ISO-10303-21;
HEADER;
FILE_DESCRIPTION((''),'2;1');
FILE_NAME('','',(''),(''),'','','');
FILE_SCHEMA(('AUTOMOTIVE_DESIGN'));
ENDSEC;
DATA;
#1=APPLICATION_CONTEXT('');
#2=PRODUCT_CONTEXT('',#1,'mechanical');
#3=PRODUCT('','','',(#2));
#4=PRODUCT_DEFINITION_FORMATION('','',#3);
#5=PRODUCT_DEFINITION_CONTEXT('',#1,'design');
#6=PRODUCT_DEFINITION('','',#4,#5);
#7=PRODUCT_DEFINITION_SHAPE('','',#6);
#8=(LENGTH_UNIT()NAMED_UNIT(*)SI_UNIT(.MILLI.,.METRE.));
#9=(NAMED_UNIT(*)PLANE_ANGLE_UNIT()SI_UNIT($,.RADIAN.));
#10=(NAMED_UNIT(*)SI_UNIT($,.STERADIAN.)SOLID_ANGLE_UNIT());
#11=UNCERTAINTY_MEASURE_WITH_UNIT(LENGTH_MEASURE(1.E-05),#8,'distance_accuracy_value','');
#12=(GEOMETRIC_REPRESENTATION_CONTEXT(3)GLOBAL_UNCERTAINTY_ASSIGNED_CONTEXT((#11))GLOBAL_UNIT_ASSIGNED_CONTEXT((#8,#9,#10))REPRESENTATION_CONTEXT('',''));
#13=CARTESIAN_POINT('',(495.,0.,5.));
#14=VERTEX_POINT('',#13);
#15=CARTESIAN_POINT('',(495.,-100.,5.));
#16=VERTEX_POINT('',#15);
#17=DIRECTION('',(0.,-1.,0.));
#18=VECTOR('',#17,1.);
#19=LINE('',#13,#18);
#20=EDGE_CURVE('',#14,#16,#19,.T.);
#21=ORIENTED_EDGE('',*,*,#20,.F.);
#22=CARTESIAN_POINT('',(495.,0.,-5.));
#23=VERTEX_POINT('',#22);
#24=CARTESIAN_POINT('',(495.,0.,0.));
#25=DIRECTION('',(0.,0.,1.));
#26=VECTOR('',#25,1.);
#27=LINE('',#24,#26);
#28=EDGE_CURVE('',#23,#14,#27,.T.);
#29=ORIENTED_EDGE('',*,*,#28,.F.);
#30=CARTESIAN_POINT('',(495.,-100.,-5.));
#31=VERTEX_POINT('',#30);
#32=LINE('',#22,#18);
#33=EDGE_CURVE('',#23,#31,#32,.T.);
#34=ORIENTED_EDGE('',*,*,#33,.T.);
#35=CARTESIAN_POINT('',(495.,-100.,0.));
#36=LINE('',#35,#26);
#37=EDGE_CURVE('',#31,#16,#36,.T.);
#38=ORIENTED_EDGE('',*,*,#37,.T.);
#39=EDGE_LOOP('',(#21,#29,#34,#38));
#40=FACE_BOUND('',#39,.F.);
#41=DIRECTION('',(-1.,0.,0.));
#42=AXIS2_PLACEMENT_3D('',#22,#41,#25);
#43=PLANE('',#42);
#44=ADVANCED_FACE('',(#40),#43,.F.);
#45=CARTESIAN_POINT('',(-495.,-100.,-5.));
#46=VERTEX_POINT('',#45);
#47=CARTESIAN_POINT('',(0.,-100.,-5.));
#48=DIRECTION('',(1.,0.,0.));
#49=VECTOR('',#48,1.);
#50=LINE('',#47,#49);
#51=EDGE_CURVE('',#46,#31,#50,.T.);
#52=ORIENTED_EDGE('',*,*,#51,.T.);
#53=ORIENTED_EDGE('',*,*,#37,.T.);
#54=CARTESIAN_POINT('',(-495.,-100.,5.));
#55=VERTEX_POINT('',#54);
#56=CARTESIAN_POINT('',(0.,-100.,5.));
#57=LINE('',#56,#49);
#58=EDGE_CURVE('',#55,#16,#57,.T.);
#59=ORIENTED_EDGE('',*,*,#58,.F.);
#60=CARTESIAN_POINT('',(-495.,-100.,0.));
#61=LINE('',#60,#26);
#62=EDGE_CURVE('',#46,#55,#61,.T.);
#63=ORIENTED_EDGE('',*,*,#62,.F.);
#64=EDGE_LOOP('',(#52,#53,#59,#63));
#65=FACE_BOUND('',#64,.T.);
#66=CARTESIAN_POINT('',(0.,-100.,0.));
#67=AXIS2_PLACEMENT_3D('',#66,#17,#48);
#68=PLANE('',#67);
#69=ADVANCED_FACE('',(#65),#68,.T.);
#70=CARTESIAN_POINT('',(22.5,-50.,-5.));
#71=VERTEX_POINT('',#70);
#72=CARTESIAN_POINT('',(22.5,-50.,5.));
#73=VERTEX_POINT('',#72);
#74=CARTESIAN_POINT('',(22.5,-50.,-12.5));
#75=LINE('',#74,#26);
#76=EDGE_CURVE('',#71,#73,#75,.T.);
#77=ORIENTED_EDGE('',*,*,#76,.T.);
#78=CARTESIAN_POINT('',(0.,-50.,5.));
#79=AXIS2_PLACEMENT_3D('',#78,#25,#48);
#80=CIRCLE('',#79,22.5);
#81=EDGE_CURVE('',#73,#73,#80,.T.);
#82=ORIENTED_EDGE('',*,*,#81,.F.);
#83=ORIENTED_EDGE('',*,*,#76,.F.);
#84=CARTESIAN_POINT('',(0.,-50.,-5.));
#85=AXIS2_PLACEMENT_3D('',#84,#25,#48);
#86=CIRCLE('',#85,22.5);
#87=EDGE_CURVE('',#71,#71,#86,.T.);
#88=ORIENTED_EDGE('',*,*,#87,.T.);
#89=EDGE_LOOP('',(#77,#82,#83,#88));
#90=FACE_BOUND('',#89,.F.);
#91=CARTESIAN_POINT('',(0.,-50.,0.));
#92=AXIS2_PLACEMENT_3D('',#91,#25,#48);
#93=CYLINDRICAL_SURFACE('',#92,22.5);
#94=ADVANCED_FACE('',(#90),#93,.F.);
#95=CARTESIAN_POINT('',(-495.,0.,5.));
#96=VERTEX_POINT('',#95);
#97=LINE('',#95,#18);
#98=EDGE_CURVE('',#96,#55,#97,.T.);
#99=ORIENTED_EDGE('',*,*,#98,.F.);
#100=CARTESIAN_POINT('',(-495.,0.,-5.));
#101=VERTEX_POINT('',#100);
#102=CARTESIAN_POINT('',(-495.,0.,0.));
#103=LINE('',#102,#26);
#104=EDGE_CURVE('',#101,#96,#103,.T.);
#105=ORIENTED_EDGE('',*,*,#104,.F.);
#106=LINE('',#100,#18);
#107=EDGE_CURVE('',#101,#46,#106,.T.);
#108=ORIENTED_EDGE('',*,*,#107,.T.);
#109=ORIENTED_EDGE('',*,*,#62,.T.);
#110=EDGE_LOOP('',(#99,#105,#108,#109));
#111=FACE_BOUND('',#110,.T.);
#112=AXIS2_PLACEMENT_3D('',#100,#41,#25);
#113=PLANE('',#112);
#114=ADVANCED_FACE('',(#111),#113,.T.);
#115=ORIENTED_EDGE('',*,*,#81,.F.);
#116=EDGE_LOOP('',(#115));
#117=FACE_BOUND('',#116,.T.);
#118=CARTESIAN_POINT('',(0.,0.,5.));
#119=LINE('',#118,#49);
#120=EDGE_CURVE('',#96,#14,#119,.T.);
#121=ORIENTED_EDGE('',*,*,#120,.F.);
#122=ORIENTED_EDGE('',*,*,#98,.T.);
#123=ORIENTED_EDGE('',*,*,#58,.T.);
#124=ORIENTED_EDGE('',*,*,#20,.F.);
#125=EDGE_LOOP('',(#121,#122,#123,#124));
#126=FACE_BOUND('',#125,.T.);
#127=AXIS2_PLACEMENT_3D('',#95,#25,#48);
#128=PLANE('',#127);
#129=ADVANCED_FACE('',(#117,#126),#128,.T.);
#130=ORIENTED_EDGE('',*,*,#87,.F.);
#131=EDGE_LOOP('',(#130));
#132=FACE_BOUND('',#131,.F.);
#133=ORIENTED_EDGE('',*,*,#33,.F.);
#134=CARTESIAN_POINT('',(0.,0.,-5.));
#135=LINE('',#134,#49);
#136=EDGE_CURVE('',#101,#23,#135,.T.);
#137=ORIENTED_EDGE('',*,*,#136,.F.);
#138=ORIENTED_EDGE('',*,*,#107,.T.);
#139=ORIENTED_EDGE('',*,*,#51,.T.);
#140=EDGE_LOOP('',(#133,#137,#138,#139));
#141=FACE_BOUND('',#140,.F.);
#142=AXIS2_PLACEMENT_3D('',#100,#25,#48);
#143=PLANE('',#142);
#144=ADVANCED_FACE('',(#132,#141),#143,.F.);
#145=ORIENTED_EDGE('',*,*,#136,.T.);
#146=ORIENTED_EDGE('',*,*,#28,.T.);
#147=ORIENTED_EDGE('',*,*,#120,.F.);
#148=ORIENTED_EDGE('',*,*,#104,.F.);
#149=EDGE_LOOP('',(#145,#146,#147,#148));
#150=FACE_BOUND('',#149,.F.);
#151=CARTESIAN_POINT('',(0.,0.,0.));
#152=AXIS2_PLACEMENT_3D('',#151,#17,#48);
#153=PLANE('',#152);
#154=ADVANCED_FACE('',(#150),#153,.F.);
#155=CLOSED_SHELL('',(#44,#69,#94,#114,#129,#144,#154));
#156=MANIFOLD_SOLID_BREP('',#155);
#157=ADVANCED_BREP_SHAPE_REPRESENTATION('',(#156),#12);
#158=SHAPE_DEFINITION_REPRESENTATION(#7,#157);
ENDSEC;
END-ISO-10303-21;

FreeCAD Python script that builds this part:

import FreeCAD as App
import Part
import Sketcher

V = App.Vector
Q = App.Units.Quantity

doc = App.newDocument("Part")
body = doc.addObject("PartDesign::Body", "Body")

# Sketch on XZ plane
sketch1 = body.newObject("Sketcher::SketchObject", "Sketch")
sketch1.AttachmentSupport = (doc.getObject("XZ_Plane"), [""])
sketch1.MapMode = "FlatFace"
sketch1.addGeometry(Part.LineSegment(V(-495, 5, 0), V(-495, -5, 0)), False)
sketch1.addGeometry(Part.LineSegment(V(-495, -5, 0), V(495, -5, 0)), False)
sketch1.addGeometry(Part.LineSegment(V(495, -5, 0), V(495, 5, 0)), False)
sketch1.addGeometry(Part.LineSegment(V(495, 5, 0), V(-495, 5, 0)), False)
sketch1.addConstraint(Sketcher.Constraint("Coincident", 0, 2, 1, 1))
sketch1.addConstraint(Sketcher.Constraint("Coincident", 1, 2, 2, 1))
sketch1.addConstraint(Sketcher.Constraint("Coincident", 2, 2, 3, 1))
sketch1.addConstraint(Sketcher.Constraint("Coincident", 3, 2, 0, 1))
sketch1.addConstraint(Sketcher.Constraint("Vertical", 0))
sketch1.addConstraint(Sketcher.Constraint("Horizontal", 1))
sketch1.addConstraint(Sketcher.Constraint("Vertical", 2))
sketch1.addConstraint(Sketcher.Constraint("Horizontal", 3))
sketch1.addConstraint(Sketcher.Constraint("Symmetric", 0, 2, 2, 2, -1, 1))
sketch1.addConstraint(Sketcher.Constraint("DistanceX", 1, 1, 1, 2, Q("990 mm")))
sketch1.addConstraint(Sketcher.Constraint("DistanceY", 0, 2, 0, 1, Q("10 mm")))
pad1 = body.newObject("PartDesign::Pad", "Pad")
pad1.Profile = sketch1
pad1.Length = 100

# Sketch on XY plane
sketch2 = body.newObject("Sketcher::SketchObject", "Sketch001")
sketch2.AttachmentSupport = (doc.getObject("XY_Plane"), [""])
sketch2.MapMode = "FlatFace"
sketch2.addGeometry(Part.Circle(V(0, -50, 0), V(0, 0, 1), 22.5), False)
sketch2.addConstraint(Sketcher.Constraint("PointOnObject", 0, 3, -2))
sketch2.addConstraint(Sketcher.Constraint("Diameter", 0, Q("45 mm")))
sketch2.addConstraint(Sketcher.Constraint("DistanceY", 0, 3, -1, 1, Q("50 mm")))
pocket1 = body.newObject("PartDesign::Pocket", "Pocket")
pocket1.Profile = sketch2
pocket1.Length = 25
pocket1.Midplane = True

doc.recompute()
